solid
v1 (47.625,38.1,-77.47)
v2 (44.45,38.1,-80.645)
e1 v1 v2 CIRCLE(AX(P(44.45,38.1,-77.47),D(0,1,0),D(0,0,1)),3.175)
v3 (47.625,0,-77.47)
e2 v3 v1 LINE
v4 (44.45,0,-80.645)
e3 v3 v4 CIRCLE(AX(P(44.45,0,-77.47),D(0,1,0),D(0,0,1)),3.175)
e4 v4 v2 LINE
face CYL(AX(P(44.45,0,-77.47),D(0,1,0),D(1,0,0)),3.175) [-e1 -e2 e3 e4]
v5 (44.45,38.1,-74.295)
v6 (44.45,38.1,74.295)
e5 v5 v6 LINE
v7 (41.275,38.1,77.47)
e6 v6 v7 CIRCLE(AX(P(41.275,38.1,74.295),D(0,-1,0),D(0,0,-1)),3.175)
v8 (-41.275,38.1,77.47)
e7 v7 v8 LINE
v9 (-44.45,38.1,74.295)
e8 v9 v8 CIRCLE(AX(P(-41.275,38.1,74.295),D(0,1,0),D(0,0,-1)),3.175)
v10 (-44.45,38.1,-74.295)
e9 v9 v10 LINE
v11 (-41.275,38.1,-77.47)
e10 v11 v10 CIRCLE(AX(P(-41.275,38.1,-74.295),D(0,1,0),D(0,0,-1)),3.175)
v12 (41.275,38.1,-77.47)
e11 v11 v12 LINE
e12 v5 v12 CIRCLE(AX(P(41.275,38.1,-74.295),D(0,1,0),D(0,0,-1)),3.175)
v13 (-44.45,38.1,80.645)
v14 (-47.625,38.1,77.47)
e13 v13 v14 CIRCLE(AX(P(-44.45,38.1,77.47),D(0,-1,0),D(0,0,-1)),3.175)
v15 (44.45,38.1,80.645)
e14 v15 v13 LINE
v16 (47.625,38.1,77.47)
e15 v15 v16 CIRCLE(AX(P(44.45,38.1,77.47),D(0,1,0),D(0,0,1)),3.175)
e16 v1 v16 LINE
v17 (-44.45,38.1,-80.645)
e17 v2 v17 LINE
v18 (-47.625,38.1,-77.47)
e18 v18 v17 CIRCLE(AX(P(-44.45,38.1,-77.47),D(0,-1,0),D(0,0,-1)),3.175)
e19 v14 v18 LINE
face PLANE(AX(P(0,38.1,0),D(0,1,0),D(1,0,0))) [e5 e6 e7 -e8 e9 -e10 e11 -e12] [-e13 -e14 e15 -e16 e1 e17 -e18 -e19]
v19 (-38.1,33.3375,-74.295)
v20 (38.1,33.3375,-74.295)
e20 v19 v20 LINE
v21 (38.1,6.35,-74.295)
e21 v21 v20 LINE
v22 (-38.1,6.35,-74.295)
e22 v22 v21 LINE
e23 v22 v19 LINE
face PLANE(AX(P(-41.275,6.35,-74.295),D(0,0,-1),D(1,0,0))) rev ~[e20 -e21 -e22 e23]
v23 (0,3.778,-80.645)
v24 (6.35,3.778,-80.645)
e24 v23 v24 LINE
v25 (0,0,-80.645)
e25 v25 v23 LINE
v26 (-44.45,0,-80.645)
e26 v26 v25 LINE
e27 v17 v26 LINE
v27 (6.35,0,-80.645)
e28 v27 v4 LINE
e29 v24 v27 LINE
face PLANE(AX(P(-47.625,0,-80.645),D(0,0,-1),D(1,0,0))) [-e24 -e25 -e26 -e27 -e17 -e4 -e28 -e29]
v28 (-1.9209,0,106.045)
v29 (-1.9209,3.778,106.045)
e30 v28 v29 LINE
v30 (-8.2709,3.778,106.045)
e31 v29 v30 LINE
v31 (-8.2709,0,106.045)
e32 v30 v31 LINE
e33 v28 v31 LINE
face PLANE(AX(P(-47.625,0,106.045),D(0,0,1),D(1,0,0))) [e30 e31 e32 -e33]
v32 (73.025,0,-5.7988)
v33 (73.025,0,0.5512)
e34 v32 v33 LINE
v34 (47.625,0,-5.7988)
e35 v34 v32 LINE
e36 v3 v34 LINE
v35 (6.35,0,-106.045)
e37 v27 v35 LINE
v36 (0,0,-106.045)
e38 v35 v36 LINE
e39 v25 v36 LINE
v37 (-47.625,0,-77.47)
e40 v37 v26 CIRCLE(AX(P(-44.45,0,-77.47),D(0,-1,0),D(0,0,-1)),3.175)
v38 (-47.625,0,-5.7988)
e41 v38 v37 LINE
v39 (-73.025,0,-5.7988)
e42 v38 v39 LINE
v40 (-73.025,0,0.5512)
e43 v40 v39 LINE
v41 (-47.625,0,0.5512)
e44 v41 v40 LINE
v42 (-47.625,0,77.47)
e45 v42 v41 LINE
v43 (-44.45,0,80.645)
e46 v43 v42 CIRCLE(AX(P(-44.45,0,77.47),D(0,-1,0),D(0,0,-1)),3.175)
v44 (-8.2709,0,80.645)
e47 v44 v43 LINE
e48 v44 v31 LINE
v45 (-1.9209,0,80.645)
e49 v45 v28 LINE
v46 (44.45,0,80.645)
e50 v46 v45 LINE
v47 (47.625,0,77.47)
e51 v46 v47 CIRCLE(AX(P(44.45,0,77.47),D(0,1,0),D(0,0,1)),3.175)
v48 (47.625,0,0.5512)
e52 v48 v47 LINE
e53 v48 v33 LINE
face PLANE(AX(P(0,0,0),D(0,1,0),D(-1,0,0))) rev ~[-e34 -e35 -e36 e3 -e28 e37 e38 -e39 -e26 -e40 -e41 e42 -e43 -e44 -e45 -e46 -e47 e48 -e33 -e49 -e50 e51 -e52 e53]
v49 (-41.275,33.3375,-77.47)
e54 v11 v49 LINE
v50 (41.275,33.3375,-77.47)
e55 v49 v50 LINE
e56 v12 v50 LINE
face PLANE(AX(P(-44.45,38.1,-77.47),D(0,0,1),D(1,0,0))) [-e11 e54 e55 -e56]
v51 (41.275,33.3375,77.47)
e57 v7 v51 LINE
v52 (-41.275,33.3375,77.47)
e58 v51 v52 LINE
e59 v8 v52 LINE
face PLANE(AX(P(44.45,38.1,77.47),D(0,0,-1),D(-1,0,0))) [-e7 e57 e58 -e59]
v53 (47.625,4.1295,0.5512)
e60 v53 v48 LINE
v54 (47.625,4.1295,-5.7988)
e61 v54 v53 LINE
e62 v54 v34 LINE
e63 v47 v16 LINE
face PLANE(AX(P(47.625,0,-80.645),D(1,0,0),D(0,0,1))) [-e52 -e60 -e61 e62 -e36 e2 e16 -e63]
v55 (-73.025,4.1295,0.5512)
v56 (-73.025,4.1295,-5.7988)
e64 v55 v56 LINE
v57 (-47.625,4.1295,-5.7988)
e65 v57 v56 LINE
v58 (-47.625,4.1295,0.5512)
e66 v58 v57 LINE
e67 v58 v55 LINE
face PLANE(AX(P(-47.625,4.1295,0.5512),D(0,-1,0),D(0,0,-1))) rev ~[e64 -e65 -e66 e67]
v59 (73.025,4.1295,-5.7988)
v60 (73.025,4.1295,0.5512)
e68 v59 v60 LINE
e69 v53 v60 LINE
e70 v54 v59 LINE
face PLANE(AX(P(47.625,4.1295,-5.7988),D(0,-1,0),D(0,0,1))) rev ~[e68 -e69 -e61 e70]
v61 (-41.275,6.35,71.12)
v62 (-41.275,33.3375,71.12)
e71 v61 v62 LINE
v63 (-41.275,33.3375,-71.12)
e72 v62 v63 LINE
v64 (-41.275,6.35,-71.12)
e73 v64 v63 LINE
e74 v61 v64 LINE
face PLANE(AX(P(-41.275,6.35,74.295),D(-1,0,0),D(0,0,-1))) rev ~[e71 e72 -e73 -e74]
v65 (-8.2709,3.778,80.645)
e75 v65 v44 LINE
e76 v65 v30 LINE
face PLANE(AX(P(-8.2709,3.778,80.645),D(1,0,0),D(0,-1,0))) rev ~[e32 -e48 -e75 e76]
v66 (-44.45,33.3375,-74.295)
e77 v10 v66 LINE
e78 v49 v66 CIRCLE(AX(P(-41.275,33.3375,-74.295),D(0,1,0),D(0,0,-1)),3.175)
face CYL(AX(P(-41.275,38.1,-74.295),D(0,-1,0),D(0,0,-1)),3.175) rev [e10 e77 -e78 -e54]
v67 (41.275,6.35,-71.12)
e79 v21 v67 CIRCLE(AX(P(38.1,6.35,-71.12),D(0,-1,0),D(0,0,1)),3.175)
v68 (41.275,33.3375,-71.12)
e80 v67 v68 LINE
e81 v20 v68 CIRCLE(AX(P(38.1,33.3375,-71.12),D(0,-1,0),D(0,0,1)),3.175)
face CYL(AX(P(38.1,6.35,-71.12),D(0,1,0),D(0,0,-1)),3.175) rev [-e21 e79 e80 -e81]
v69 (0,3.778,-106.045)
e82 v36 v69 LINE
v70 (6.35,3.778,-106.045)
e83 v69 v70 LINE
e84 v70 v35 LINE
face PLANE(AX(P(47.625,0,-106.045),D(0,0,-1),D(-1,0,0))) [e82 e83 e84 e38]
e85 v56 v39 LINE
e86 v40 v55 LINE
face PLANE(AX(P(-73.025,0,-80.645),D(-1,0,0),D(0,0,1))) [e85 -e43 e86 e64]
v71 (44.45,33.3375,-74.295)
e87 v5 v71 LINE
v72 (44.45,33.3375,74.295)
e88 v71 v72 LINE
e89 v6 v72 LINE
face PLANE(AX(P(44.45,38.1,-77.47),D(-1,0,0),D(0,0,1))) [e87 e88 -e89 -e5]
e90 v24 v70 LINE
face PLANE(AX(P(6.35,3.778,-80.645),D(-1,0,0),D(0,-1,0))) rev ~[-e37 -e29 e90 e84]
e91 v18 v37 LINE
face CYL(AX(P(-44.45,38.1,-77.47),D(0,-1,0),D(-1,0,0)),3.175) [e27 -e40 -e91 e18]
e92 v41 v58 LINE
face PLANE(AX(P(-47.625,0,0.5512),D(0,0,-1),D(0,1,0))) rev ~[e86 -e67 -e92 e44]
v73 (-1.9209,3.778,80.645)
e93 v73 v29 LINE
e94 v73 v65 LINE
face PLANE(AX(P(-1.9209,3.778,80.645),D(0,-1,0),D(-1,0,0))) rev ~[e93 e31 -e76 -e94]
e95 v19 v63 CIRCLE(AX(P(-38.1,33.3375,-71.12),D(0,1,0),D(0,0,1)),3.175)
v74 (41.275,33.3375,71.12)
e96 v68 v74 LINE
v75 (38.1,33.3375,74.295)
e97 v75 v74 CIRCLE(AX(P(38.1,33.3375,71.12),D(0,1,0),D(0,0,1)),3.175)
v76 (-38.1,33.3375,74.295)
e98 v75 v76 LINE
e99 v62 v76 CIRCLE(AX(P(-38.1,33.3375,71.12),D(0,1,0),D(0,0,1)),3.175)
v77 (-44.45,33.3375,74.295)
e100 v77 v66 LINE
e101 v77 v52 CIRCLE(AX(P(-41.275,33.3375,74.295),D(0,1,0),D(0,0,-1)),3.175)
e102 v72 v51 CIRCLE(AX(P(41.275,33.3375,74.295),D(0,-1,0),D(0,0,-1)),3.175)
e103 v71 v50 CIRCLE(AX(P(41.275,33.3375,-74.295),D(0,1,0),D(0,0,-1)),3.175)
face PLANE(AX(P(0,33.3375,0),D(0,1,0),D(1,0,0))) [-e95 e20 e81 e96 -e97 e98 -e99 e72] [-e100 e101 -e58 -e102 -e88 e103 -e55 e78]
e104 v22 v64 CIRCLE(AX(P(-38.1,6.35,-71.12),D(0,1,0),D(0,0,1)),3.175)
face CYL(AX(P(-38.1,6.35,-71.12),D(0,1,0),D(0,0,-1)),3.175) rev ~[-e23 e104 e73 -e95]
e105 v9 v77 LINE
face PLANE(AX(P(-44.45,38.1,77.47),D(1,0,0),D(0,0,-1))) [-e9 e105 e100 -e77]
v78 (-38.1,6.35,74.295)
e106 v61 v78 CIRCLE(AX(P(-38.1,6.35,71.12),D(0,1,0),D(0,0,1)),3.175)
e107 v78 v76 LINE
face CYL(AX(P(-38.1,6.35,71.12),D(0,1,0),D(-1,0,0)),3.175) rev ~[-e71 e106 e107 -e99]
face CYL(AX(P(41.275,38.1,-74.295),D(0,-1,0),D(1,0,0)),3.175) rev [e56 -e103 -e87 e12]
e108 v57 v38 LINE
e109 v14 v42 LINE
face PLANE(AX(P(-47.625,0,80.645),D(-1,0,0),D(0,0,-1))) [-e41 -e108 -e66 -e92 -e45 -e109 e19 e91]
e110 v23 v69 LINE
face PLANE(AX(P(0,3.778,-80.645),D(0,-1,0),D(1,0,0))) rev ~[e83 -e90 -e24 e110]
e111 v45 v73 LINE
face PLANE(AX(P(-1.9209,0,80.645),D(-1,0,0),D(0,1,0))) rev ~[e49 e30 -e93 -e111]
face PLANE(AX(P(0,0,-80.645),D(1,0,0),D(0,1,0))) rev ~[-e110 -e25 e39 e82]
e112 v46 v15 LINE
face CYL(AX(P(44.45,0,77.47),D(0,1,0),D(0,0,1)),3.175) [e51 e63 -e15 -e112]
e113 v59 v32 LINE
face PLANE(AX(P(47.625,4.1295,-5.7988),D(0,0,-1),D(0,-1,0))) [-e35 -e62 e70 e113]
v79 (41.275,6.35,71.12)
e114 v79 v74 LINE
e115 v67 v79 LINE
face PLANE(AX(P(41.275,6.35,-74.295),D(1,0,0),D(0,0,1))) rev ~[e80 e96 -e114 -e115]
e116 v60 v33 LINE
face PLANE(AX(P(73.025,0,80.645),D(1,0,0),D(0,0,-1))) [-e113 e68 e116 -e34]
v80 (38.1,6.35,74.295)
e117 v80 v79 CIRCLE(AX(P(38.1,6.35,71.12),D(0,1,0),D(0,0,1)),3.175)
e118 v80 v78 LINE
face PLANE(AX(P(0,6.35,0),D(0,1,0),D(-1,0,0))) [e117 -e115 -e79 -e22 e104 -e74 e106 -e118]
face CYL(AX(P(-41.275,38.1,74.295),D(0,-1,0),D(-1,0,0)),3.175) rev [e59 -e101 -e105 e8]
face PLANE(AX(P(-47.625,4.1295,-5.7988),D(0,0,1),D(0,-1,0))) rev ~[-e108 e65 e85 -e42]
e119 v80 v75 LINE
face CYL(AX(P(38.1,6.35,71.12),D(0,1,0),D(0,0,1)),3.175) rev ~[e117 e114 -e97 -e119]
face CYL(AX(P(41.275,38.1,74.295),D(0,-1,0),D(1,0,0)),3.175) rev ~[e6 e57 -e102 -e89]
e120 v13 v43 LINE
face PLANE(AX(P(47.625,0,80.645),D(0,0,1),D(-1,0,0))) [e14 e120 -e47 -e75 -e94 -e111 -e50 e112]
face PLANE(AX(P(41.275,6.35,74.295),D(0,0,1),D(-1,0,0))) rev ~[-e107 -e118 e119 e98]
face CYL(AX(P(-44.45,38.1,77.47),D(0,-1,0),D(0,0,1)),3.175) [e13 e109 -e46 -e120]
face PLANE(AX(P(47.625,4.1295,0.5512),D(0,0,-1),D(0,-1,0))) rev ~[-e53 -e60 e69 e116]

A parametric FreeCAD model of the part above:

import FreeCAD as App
import Part
import Sketcher

V = App.Vector
Q = App.Units.Quantity


def edges_at(feature, points):
    """Names of the edges that pass closest to the given points."""
    edges = feature.Shape.Edges
    near = lambda p: min(range(len(edges)), key=lambda i: edges[i].distToShape(Part.Vertex(*p))[0])
    return sorted({f"Edge{near(p) + 1}" for p in points})

doc = App.newDocument("Part")
body = doc.addObject("PartDesign::Body", "Body")

# Sketch on XZ plane
sketch1 = body.newObject("Sketcher::SketchObject", "Sketch")
sketch1.AttachmentSupport = (doc.getObject("XZ_Plane"), [""])
sketch1.MapMode = "FlatFace"
sketch1.addGeometry([
    Part.LineSegment(V(-47.625, 80.645, 0), V(47.625, 80.645, 0)),
    Part.LineSegment(V(47.625, 80.645, 0), V(47.625, -80.645, 0)),
    Part.LineSegment(V(47.625, -80.645, 0), V(-47.625, -80.645, 0)),
    Part.LineSegment(V(-47.625, -80.645, 0), V(-47.625, 80.645, 0)),
], False)
sketch1.addConstraint([
    Sketcher.Constraint("Coincident", 0, 2, 1, 1),
    Sketcher.Constraint("Coincident", 1, 2, 2, 1),
    Sketcher.Constraint("Coincident", 2, 2, 3, 1),
    Sketcher.Constraint("Coincident", 3, 2, 0, 1),
    Sketcher.Constraint("Horizontal", 0),
    Sketcher.Constraint("Vertical", 1),
    Sketcher.Constraint("Horizontal", 2),
    Sketcher.Constraint("Vertical", 3),
    Sketcher.Constraint("Symmetric", 0, 2, 2, 2, -1, 1),
    Sketcher.Constraint("DistanceX", 0, 1, 0, 2, Q("3.75 in")),
    Sketcher.Constraint("DistanceY", 1, 2, 1, 1, Q("6.35 in")),
])
pad1 = body.newObject("PartDesign::Pad", "Pad")
pad1.Profile = sketch1
pad1.Length = Q("0.25 in")
pad1.Reversed = True

# Sketch on XZ plane
sketch2 = body.newObject("Sketcher::SketchObject", "Sketch001")
sketch2.AttachmentSupport = (doc.getObject("XZ_Plane"), [""])
sketch2.MapMode = "FlatFace"
sketch2.AttachmentOffset = App.Placement(V(0, 0, -0.25 * 25.4), App.Rotation())
sketch2.addGeometry([
    Part.LineSegment(V(47.625, 80.645, 0), V(47.625, -80.645, 0)),  # 0
    Part.LineSegment(V(47.625, -80.645, 0), V(-47.625, -80.645, 0)),  # 1
    Part.LineSegment(V(-47.625, -80.645, 0), V(-47.625, 80.645, 0)),  # 2
    Part.LineSegment(V(-47.625, 80.645, 0), V(47.625, 80.645, 0)),  # 3
    Part.LineSegment(V(41.275, -74.295, 0), V(41.275, 74.295, 0)),  # 4
    Part.LineSegment(V(41.275, 74.295, 0), V(-41.275, 74.295, 0)),  # 5
    Part.LineSegment(V(-41.275, 74.295, 0), V(-41.275, -74.295, 0)),  # 6
    Part.LineSegment(V(-41.275, -74.295, 0), V(41.275, -74.295, 0)),  # 7
], False)
sketch2.addConstraint([
    Sketcher.Constraint("Coincident", 0, 2, 1, 1),
    Sketcher.Constraint("Coincident", 1, 2, 2, 1),
    Sketcher.Constraint("Coincident", 2, 2, 3, 1),
    Sketcher.Constraint("Coincident", 3, 2, 0, 1),
    Sketcher.Constraint("Coincident", 4, 2, 5, 1),
    Sketcher.Constraint("Coincident", 5, 2, 6, 1),
    Sketcher.Constraint("Coincident", 6, 2, 7, 1),
    Sketcher.Constraint("Coincident", 7, 2, 4, 1),
    Sketcher.Constraint("Vertical", 0),
    Sketcher.Constraint("Horizontal", 1),
    Sketcher.Constraint("Vertical", 2),
    Sketcher.Constraint("Horizontal", 3),
    Sketcher.Constraint("Vertical", 4),
    Sketcher.Constraint("Horizontal", 5),
    Sketcher.Constraint("Vertical", 6),
    Sketcher.Constraint("Horizontal", 7),
    Sketcher.Constraint("Symmetric", 0, 2, 2, 2, -1, 1),
    Sketcher.Constraint("Symmetric", 4, 2, 6, 2, -1, 1),
    Sketcher.Constraint("DistanceX", 5, 2, 5, 1, Q("3.25 in")),
    Sketcher.Constraint("DistanceY", 4, 1, 4, 2, Q("5.85 in")),
    Sketcher.Constraint("DistanceX", 1, 2, 1, 1, Q("3.75 in")),
    Sketcher.Constraint("DistanceY", 0, 2, 0, 1, Q("6.35 in")),
])
pad2 = body.newObject("PartDesign::Pad", "Pad001")
pad2.Profile = sketch2
pad2.Length = Q("1.25 in")
pad2.Reversed = True

# Sketch on XZ plane
sketch3 = body.newObject("Sketcher::SketchObject", "Sketch002")
sketch3.AttachmentSupport = (doc.getObject("XZ_Plane"), [""])
sketch3.MapMode = "FlatFace"
sketch3.AttachmentOffset = App.Placement(V(0, 0, -1.5 * 25.4), App.Rotation())
sketch3.addGeometry([
    Part.LineSegment(V(-44.45, 77.47, 0), V(44.45, 77.47, 0)),
    Part.LineSegment(V(44.45, 77.47, 0), V(44.45, -77.47, 0)),
    Part.LineSegment(V(44.45, -77.47, 0), V(-44.45, -77.47, 0)),
    Part.LineSegment(V(-44.45, -77.47, 0), V(-44.45, 77.47, 0)),
], False)
sketch3.addConstraint([
    Sketcher.Constraint("Coincident", 0, 2, 1, 1),
    Sketcher.Constraint("Coincident", 1, 2, 2, 1),
    Sketcher.Constraint("Coincident", 2, 2, 3, 1),
    Sketcher.Constraint("Coincident", 3, 2, 0, 1),
    Sketcher.Constraint("Horizontal", 0),
    Sketcher.Constraint("Vertical", 1),
    Sketcher.Constraint("Horizontal", 2),
    Sketcher.Constraint("Vertical", 3),
    Sketcher.Constraint("Symmetric", 0, 2, 2, 2, -1, 1),
    Sketcher.Constraint("DistanceX", 0, 1, 0, 2, Q("3.5 in")),
    Sketcher.Constraint("DistanceY", 1, 2, 1, 1, Q("6.1 in")),
])
pocket1 = body.newObject("PartDesign::Pocket", "Pocket")
pocket1.Profile = sketch3
pocket1.Length = Q("0.1875 in")
pocket1.Reversed = True

# Sketch on YZ plane
sketch4 = body.newObject("Sketcher::SketchObject", "Sketch003")
sketch4.AttachmentSupport = (doc.getObject("YZ_Plane"), [""])
sketch4.MapMode = "FlatFace"
sketch4.AttachmentOffset = App.Placement(V(0, 0, -1.875 * 25.4), App.Rotation())
sketch4.addGeometry([
    Part.LineSegment(V(0, -5.7988, 0), V(0, 0.5512, 0)),
    Part.LineSegment(V(0, 0.5512, 0), V(4.1295, 0.5512, 0)),
    Part.LineSegment(V(4.1295, 0.5512, 0), V(4.1295, -5.7988, 0)),
    Part.LineSegment(V(4.1295, -5.7988, 0), V(0, -5.7988, 0)),
], False)
sketch4.addConstraint([
    Sketcher.Constraint("Coincident", 0, 2, 1, 1),
    Sketcher.Constraint("Coincident", 1, 2, 2, 1),
    Sketcher.Constraint("Coincident", 2, 2, 3, 1),
    Sketcher.Constraint("Coincident", 3, 2, 0, 1),
    Sketcher.Constraint("Vertical", 0),
    Sketcher.Constraint("Horizontal", 1),
    Sketcher.Constraint("Vertical", 2),
    Sketcher.Constraint("Horizontal", 3),
    Sketcher.Constraint("PointOnObject", 0, 2, -2),
    Sketcher.Constraint("DistanceY", 0, 1, 0, 2, Q("0.25 in")),
    Sketcher.Constraint("DistanceX", 1, 1, 1, 2, Q("4.1295 mm")),
    Sketcher.Constraint("DistanceY", -1, 1, 0, 2, Q("0.0217 in")),
])
pad3 = body.newObject("PartDesign::Pad", "Pad002")
pad3.Profile = sketch4
pad3.Length = Q("1 in")
pad3.Reversed = True

# Sketch on XY plane
sketch5 = body.newObject("Sketcher::SketchObject", "Sketch004")
sketch5.AttachmentSupport = (doc.getObject("XY_Plane"), [""])
sketch5.MapMode = "FlatFace"
sketch5.AttachmentOffset = App.Placement(V(0, 0, 3.175 * 25.4), App.Rotation())
sketch5.addGeometry([
    Part.LineSegment(V(-8.2709, 0, 0), V(-1.9209, 0, 0)),
    Part.LineSegment(V(-1.9209, 0, 0), V(-1.9209, 3.778, 0)),
    Part.LineSegment(V(-1.9209, 3.778, 0), V(-8.2709, 3.778, 0)),
    Part.LineSegment(V(-8.2709, 3.778, 0), V(-8.2709, 0, 0)),
], False)
sketch5.addConstraint([
    Sketcher.Constraint("Coincident", 0, 2, 1, 1),
    Sketcher.Constraint("Coincident", 1, 2, 2, 1),
    Sketcher.Constraint("Coincident", 2, 2, 3, 1),
    Sketcher.Constraint("Coincident", 3, 2, 0, 1),
    Sketcher.Constraint("Horizontal", 0),
    Sketcher.Constraint("Vertical", 1),
    Sketcher.Constraint("Horizontal", 2),
    Sketcher.Constraint("Vertical", 3),
    Sketcher.Constraint("PointOnObject", 0, 2, -1),
    Sketcher.Constraint("DistanceX", 0, 1, 0, 2, Q("0.25 in")),
    Sketcher.Constraint("DistanceY", 1, 1, 1, 2, Q("3.778 mm")),
    Sketcher.Constraint("DistanceX", 0, 2, -1, 1, Q("1.921 mm")),
])
pad4 = body.newObject("PartDesign::Pad", "Pad003")
pad4.Profile = sketch5
pad4.Length = Q("1 in")

# Sketch on YZ plane
sketch6 = body.newObject("Sketcher::SketchObject", "Sketch005")
sketch6.AttachmentSupport = (doc.getObject("YZ_Plane"), [""])
sketch6.MapMode = "FlatFace"
sketch6.AttachmentOffset = App.Placement(V(0, 0, 1.875 * 25.4), App.Rotation())
sketch6.addGeometry([
    Part.LineSegment(V(0, 0.5512, 0), V(0, -5.7988, 0)),
    Part.LineSegment(V(0, -5.7988, 0), V(4.1295, -5.7988, 0)),
    Part.LineSegment(V(4.1295, -5.7988, 0), V(4.1295, 0.5512, 0)),
    Part.LineSegment(V(4.1295, 0.5512, 0), V(0, 0.5512, 0)),
], False)
sketch6.addConstraint([
    Sketcher.Constraint("Coincident", 0, 2, 1, 1),
    Sketcher.Constraint("Coincident", 1, 2, 2, 1),
    Sketcher.Constraint("Coincident", 2, 2, 3, 1),
    Sketcher.Constraint("Coincident", 3, 2, 0, 1),
    Sketcher.Constraint("Vertical", 0),
    Sketcher.Constraint("Horizontal", 1),
    Sketcher.Constraint("Vertical", 2),
    Sketcher.Constraint("Horizontal", 3),
    Sketcher.Constraint("PointOnObject", 0, 2, -2),
    Sketcher.Constraint("DistanceY", 0, 2, 0, 1, Q("0.25 in")),
    Sketcher.Constraint("DistanceX", 1, 1, 1, 2, Q("4.1295 mm")),
    Sketcher.Constraint("DistanceY", 0, 2, -1, 1, Q("0.2283 in")),
])
pad5 = body.newObject("PartDesign::Pad", "Pad004")
pad5.Profile = sketch6
pad5.Length = Q("1 in")

# Sketch on XY plane
sketch7 = body.newObject("Sketcher::SketchObject", "Sketch006")
sketch7.AttachmentSupport = (doc.getObject("XY_Plane"), [""])
sketch7.MapMode = "FlatFace"
sketch7.AttachmentOffset = App.Placement(V(0, 0, -3.175 * 25.4), App.Rotation())
sketch7.addGeometry([
    Part.LineSegment(V(6.35, 3.778, 0), V(6.35, 0, 0)),
    Part.LineSegment(V(6.35, 0, 0), V(0, 0, 0)),
    Part.LineSegment(V(0, 0, 0), V(0, 3.778, 0)),
    Part.LineSegment(V(0, 3.778, 0), V(6.35, 3.778, 0)),
], False)
sketch7.addConstraint([
    Sketcher.Constraint("Coincident", 0, 2, 1, 1),
    Sketcher.Constraint("Coincident", 1, 2, 2, 1),
    Sketcher.Constraint("Coincident", 2, 2, 3, 1),
    Sketcher.Constraint("Coincident", 3, 2, 0, 1),
    Sketcher.Constraint("Vertical", 0),
    Sketcher.Constraint("Horizontal", 1),
    Sketcher.Constraint("Vertical", 2),
    Sketcher.Constraint("Horizontal", 3),
    Sketcher.Constraint("Coincident", 1, 2, -1, 1),
    Sketcher.Constraint("DistanceX", 1, 2, 1, 1, Q("0.25 in")),
    Sketcher.Constraint("DistanceY", 0, 2, 0, 1, Q("3.778 mm")),
])
pad6 = body.newObject("PartDesign::Pad", "Pad005")
pad6.Profile = sketch7
pad6.Length = Q("1 in")
pad6.Reversed = True
doc.recompute()

fillet = body.newObject("PartDesign::Fillet", "Fillet")
fillet.Base = (pad6, edges_at(pad6, [
    (47.625, 19.05, 80.645),
    (47.625, 19.05, -80.645),
    (-47.625, 19.05, -80.645),
    (-47.625, 19.05, 80.645),
    (44.45, 35.719, -77.47),
    (41.275, 19.844, -74.295),
    (-41.275, 19.844, -74.295),
    (-44.45, 35.719, -77.47),
    (-41.275, 19.844, 74.295),
    (-44.45, 35.719, 77.47),
    (41.275, 19.844, 74.295),
    (44.45, 35.719, 77.47),
]))
fillet.Radius = Q("0.125 in")

doc.recompute()
